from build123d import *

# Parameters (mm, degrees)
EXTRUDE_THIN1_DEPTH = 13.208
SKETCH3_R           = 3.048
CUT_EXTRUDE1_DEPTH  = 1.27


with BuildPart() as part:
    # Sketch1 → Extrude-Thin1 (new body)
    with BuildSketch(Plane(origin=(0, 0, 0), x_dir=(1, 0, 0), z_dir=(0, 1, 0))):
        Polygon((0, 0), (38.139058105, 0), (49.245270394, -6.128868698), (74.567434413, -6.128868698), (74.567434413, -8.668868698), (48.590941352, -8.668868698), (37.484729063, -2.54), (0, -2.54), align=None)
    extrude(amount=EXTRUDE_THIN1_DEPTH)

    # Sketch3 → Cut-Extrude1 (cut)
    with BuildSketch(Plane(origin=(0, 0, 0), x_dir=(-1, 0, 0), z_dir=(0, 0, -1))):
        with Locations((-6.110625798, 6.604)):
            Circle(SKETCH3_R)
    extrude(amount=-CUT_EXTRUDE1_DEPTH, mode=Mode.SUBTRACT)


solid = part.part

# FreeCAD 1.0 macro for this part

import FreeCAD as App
import Part
import Sketcher
Q = App.Units.Quantity


def add_polygon(sketch, points):
    """Adds a closed chain of lines whose ends are joined by coincident constraints."""
    first, n = sketch.GeometryCount, len(points)
    for a, b in zip(points, points[1:] + points[:1]):
        sketch.addGeometry(Part.LineSegment(App.Vector(*a, 0), App.Vector(*b, 0)), False)
    for i in range(n):
        sketch.addConstraint(Sketcher.Constraint("Coincident", first + i, 2, first + (i + 1) % n, 1))

doc = App.newDocument("Part")
body = doc.addObject("PartDesign::Body", "Body")

# Sketch on XZ plane
sketch1 = body.newObject("Sketcher::SketchObject", "Sketch")
sketch1.AttachmentSupport = (doc.getObject("XZ_Plane"), [""])
sketch1.MapMode = "FlatFace"
add_polygon(sketch1, [(38.1, 0), (0, 0), (0, 2.5), (37.5, 2.5), (48.6, 8.7), (74.6, 8.7), (74.6, 6.1), (49.2, 6.1)])  # lines 0-7
sketch1.addConstraint(Sketcher.Constraint("Horizontal", 0))
sketch1.addConstraint(Sketcher.Constraint("Vertical", 1))
sketch1.addConstraint(Sketcher.Constraint("Horizontal", 2))
sketch1.addConstraint(Sketcher.Constraint("Horizontal", 4))
sketch1.addConstraint(Sketcher.Constraint("Vertical", 5))
sketch1.addConstraint(Sketcher.Constraint("Horizontal", 6))
sketch1.addConstraint(Sketcher.Constraint("Coincident", 0, 2, -1, 1))
sketch1.addConstraint(Sketcher.Constraint("Parallel", 3, 7))
sketch1.addConstraint(Sketcher.Constraint("Equal", 1, 5))
sketch1.addConstraint(Sketcher.Constraint("DistanceY", 1, 1, 1, 2, Q("0.1 in")))
sketch1.addConstraint(Sketcher.Constraint("DistanceX", 0, 2, 0, 1, 38.139058))
sketch1.addConstraint(Sketcher.Constraint("DistanceX", 2, 1, 2, 2, 37.484729))
sketch1.addConstraint(Sketcher.Constraint("Distance", 3, 12.685069))
sketch1.addConstraint(Sketcher.Constraint("DistanceX", 4, 1, 4, 2, 25.976493))
sketch1.addConstraint(Sketcher.Constraint("DistanceX", -1, 1, 3, 2, 48.590941))
pad1 = body.newObject("PartDesign::Pad", "Pad")
pad1.Profile = sketch1
pad1.Length = Q("0.52 in")
pad1.Reversed = True

# Sketch on XY plane
sketch2 = body.newObject("Sketcher::SketchObject", "Sketch001")
sketch2.AttachmentSupport = (doc.getObject("XY_Plane"), [""])
sketch2.MapMode = "FlatFace"
sketch2.addGeometry(Part.Circle(App.Vector(6.1, 6.6, 0), App.Vector(0, 0, 1), 3), False)
sketch2.addConstraint(Sketcher.Constraint("Diameter", 0, Q("0.24 in")))
sketch2.addConstraint(Sketcher.Constraint("DistanceY", -1, 1, 0, 3, Q("0.26 in")))
sketch2.addConstraint(Sketcher.Constraint("DistanceX", -1, 1, 0, 3, 6.110626))
pocket1 = body.newObject("PartDesign::Pocket", "Pocket")
pocket1.Profile = sketch2
pocket1.Length = Q("0.05 in")
pocket1.Reversed = True

doc.recompute()
